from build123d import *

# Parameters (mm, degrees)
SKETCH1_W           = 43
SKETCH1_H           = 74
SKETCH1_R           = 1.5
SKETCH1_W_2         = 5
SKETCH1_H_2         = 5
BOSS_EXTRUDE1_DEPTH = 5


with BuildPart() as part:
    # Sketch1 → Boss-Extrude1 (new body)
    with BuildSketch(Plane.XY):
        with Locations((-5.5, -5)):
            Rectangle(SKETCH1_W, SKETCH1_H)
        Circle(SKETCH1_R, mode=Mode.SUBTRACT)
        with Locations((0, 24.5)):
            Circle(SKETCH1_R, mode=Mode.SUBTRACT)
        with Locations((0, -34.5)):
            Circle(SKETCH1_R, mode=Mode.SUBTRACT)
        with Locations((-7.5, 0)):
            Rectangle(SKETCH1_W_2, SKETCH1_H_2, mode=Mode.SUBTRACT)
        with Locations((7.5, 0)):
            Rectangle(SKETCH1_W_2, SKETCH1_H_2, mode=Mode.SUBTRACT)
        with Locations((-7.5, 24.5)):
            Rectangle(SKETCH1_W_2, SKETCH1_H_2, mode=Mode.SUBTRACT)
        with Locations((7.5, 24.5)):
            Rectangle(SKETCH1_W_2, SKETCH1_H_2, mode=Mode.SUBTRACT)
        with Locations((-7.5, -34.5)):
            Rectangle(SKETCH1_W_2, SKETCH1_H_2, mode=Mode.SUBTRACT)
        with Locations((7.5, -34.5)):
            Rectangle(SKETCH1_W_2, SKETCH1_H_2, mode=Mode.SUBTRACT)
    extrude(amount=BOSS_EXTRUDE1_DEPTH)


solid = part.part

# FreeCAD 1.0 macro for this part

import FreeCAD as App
import Part
import Sketcher

V = App.Vector

doc = App.newDocument("Part")
body = doc.addObject("PartDesign::Body", "Body")

sketch1 = body.newObject("Sketcher::SketchObject", "Sketch")
sketch1.AttachmentSupport = (doc.getObject("XY_Plane"), [""])
sketch1.MapMode = "FlatFace"
sketch1.addGeometry([
    Part.LineSegment(V(-27, 32, 0), V(-27, -42, 0)),
    Part.LineSegment(V(-27, -42, 0), V(16, -42, 0)),
    Part.LineSegment(V(16, -42, 0), V(16, 32, 0)),
    Part.LineSegment(V(16, 32, 0), V(-27, 32, 0)),
    Part.LineSegment(V(-5, -37, 0), V(-10, -37, 0)),
    Part.LineSegment(V(-10, -37, 0), V(-10, -32, 0)),
    Part.LineSegment(V(-10, -32, 0), V(-5, -32, 0)),
    Part.LineSegment(V(-5, -32, 0), V(-5, -37, 0)),
    Part.Circle(V(0, -34.5, 0), V(0, 0, 1), 1.5),
    Part.LineSegment(V(10, -37, 0), V(5, -37, 0)),
    Part.LineSegment(V(5, -37, 0), V(5, -32, 0)),
    Part.LineSegment(V(5, -32, 0), V(10, -32, 0)),
    Part.LineSegment(V(10, -32, 0), V(10, -37, 0)),
    Part.LineSegment(V(-5, -2.5, 0), V(-10, -2.5, 0)),
    Part.LineSegment(V(-10, -2.5, 0), V(-10, 2.5, 0)),
    Part.LineSegment(V(-10, 2.5, 0), V(-5, 2.5, 0)),
    Part.LineSegment(V(-5, 2.5, 0), V(-5, -2.5, 0)),
    Part.LineSegment(V(-5, 22, 0), V(-10, 22, 0)),
    Part.LineSegment(V(-10, 22, 0), V(-10, 27, 0)),
    Part.LineSegment(V(-10, 27, 0), V(-5, 27, 0)),
    Part.LineSegment(V(-5, 27, 0), V(-5, 22, 0)),
    Part.Circle(V(0, 0, 0), V(0, 0, 1), 1.5),
    Part.LineSegment(V(10, -2.5, 0), V(5, -2.5, 0)),
    Part.LineSegment(V(5, -2.5, 0), V(5, 2.5, 0)),
    Part.LineSegment(V(5, 2.5, 0), V(10, 2.5, 0)),
    Part.LineSegment(V(10, 2.5, 0), V(10, -2.5, 0)),
    Part.Circle(V(0, 24.5, 0), V(0, 0, 1), 1.5),
    Part.LineSegment(V(10, 22, 0), V(5, 22, 0)),
    Part.LineSegment(V(5, 22, 0), V(5, 27, 0)),
    Part.LineSegment(V(5, 27, 0), V(10, 27, 0)),
    Part.LineSegment(V(10, 27, 0), V(10, 22, 0)),
], False)
sketch1.addConstraint([
    Sketcher.Constraint("Coincident", 0, 2, 1, 1),
    Sketcher.Constraint("Coincident", 1, 2, 2, 1),
    Sketcher.Constraint("Coincident", 2, 2, 3, 1),
    Sketcher.Constraint("Coincident", 3, 2, 0, 1),
    Sketcher.Constraint("Coincident", 4, 2, 5, 1),
    Sketcher.Constraint("Coincident", 5, 2, 6, 1),
    Sketcher.Constraint("Coincident", 6, 2, 7, 1),
    Sketcher.Constraint("Coincident", 7, 2, 4, 1),
    Sketcher.Constraint("Coincident", 9, 2, 10, 1),
    Sketcher.Constraint("Coincident", 10, 2, 11, 1),
    Sketcher.Constraint("Coincident", 11, 2, 12, 1),
    Sketcher.Constraint("Coincident", 12, 2, 9, 1),
    Sketcher.Constraint("Coincident", 13, 2, 14, 1),
    Sketcher.Constraint("Coincident", 14, 2, 15, 1),
    Sketcher.Constraint("Coincident", 15, 2, 16, 1),
    Sketcher.Constraint("Coincident", 16, 2, 13, 1),
    Sketcher.Constraint("Coincident", 17, 2, 18, 1),
    Sketcher.Constraint("Coincident", 18, 2, 19, 1),
    Sketcher.Constraint("Coincident", 19, 2, 20, 1),
    Sketcher.Constraint("Coincident", 20, 2, 17, 1),
    Sketcher.Constraint("Coincident", 22, 2, 23, 1),
    Sketcher.Constraint("Coincident", 23, 2, 24, 1),
    Sketcher.Constraint("Coincident", 24, 2, 25, 1),
    Sketcher.Constraint("Coincident", 25, 2, 22, 1),
    Sketcher.Constraint("Coincident", 27, 2, 28, 1),
    Sketcher.Constraint("Coincident", 28, 2, 29, 1),
    Sketcher.Constraint("Coincident", 29, 2, 30, 1),
    Sketcher.Constraint("Coincident", 30, 2, 27, 1),
    Sketcher.Constraint("Vertical", 0),
    Sketcher.Constraint("Horizontal", 1),
    Sketcher.Constraint("Vertical", 2),
    Sketcher.Constraint("Horizontal", 3),
    Sketcher.Constraint("Horizontal", 4),
    Sketcher.Constraint("Vertical", 5),
    Sketcher.Constraint("Horizontal", 6),
    Sketcher.Constraint("Vertical", 7),
    Sketcher.Constraint("Horizontal", 9),
    Sketcher.Constraint("Vertical", 10),
    Sketcher.Constraint("Horizontal", 11),
    Sketcher.Constraint("Vertical", 12),
    Sketcher.Constraint("Horizontal", 13),
    Sketcher.Constraint("Vertical", 14),
    Sketcher.Constraint("Horizontal", 15),
    Sketcher.Constraint("Vertical", 16),
    Sketcher.Constraint("Horizontal", 17),
    Sketcher.Constraint("Vertical", 18),
    Sketcher.Constraint("Horizontal", 19),
    Sketcher.Constraint("Vertical", 20),
    Sketcher.Constraint("Horizontal", 22),
    Sketcher.Constraint("Vertical", 23),
    Sketcher.Constraint("Horizontal", 24),
    Sketcher.Constraint("Vertical", 25),
    Sketcher.Constraint("Horizontal", 27),
    Sketcher.Constraint("Vertical", 28),
    Sketcher.Constraint("Horizontal", 29),
    Sketcher.Constraint("Vertical", 30),
    Sketcher.Constraint("Coincident", 21, 3, -1, 1),
    Sketcher.Constraint("Equal", 8, 21),
    Sketcher.Constraint("Equal", 21, 26),
    Sketcher.Constraint("Symmetric", 15, 2, 22, 2, -1, 1),
    Sketcher.Constraint("Symmetric", 13, 2, 24, 2, -1, 1),
    Sketcher.Constraint("Symmetric", 7, 2, 9, 2, -2),
    Sketcher.Constraint("Symmetric", 5, 2, 11, 2, -2),
    Sketcher.Constraint("Symmetric", 20, 2, 27, 2, -2),
    Sketcher.Constraint("Symmetric", 18, 2, 29, 2, -2),
    Sketcher.Constraint("PointOnObject", 8, 3, -2),
    Sketcher.Constraint("PointOnObject", 26, 3, -2),
    Sketcher.Constraint("Horizontal", 16, 2, 22, 2),
    Sketcher.Constraint("Vertical", 5, 2, 13, 2),
    Sketcher.Constraint("Vertical", 7, 2, 15, 2),
    Sketcher.Constraint("Vertical", 14, 2, 17, 2),
    Sketcher.Constraint("Vertical", 16, 2, 19, 2),
    Sketcher.Constraint("Equal", 29, 5),
    Sketcher.Constraint("Equal", 12, 14),
    Sketcher.Constraint("Equal", 16, 18),
    Sketcher.Constraint("Diameter", 8, 3.0),
    Sketcher.Constraint("DistanceX", 1, 1, 1, 2, 43.0),
    Sketcher.Constraint("DistanceX", 4, 2, 4, 1, 5.0),
    Sketcher.Constraint("DistanceY", 0, 2, 0, 1, 74.0),
    Sketcher.Constraint("DistanceX", 0, 2, -1, 1, 27.0),
    Sketcher.Constraint("DistanceY", 0, 2, -1, 1, 42.0),
    Sketcher.Constraint("DistanceX", 4, 2, -1, 1, 10.0),
    Sketcher.Constraint("DistanceY", 4, 2, -1, 1, 37.0),
    Sketcher.Constraint("DistanceY", -1, 1, 17, 2, 22.0),
    Sketcher.Constraint("DistanceY", 8, 3, 26, 3, 59.0),
    Sketcher.Constraint("DistanceY", 13, 2, 26, 3, 27.0),
])
pad1 = body.newObject("PartDesign::Pad", "Pad")
pad1.Profile = sketch1
pad1.Length = 5

doc.recompute()
